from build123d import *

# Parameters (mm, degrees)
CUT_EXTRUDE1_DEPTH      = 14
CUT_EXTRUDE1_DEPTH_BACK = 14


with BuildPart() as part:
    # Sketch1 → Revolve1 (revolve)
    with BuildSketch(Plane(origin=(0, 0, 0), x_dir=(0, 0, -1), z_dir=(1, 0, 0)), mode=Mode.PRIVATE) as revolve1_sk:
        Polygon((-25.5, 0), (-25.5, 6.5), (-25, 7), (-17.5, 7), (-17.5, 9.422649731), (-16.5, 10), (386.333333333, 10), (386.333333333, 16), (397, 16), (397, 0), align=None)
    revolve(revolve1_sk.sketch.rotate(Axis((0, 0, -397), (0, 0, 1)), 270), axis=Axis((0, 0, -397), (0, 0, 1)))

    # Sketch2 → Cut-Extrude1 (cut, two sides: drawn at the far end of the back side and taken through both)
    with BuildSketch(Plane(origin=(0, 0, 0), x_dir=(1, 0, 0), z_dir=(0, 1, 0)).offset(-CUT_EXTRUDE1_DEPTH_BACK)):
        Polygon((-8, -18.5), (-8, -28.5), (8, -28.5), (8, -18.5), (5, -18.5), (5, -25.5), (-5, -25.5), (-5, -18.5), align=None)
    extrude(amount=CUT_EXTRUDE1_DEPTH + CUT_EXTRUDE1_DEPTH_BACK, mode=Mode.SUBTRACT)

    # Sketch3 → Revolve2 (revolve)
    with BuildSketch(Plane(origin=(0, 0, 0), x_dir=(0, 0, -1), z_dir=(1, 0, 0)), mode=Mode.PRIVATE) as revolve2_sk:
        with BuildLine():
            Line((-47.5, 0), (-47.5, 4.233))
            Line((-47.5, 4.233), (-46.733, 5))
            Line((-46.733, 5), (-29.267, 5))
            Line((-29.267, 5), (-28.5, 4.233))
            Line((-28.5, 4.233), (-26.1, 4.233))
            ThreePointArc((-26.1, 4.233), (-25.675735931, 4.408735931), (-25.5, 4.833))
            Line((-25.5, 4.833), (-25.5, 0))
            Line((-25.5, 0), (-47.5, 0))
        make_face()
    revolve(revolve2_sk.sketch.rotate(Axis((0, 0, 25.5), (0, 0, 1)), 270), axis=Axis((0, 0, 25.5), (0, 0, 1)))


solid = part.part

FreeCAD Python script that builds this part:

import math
import FreeCAD as App
import Part
import Sketcher
Q = App.Units.Quantity

doc = App.newDocument("Part")
body = doc.addObject("PartDesign::Body", "Body")

# Sketch on YZ plane
sketch1 = body.newObject("Sketcher::SketchObject", "Sketch")
sketch1.AttachmentSupport = (doc.getObject("YZ_Plane"), [""])
sketch1.MapMode = "FlatFace"
sketch1.addGeometry([
    Part.LineSegment(App.Vector(6.5, 25.5, 0), App.Vector(0, 25.5, 0)),  # 0
    Part.LineSegment(App.Vector(0, 25.5, 0), App.Vector(0, -397, 0)),  # 1
    Part.LineSegment(App.Vector(0, -397, 0), App.Vector(16, -397, 0)),  # 2
    Part.LineSegment(App.Vector(16, -397, 0), App.Vector(16, -386.3, 0)),  # 3
    Part.LineSegment(App.Vector(16, -386.3, 0), App.Vector(10, -386.3, 0)),  # 4
    Part.LineSegment(App.Vector(10, -386.3, 0), App.Vector(10, 16.5, 0)),  # 5
    Part.LineSegment(App.Vector(10, 16.5, 0), App.Vector(9.4, 17.5, 0)),  # 6
    Part.LineSegment(App.Vector(9.4, 17.5, 0), App.Vector(7, 17.5, 0)),  # 7
    Part.LineSegment(App.Vector(7, 17.5, 0), App.Vector(7, 25, 0)),  # 8
    Part.LineSegment(App.Vector(7, 25, 0), App.Vector(6.5, 25.5, 0)),  # 9
], False)
sketch1.addConstraint([
    Sketcher.Constraint("Coincident", 0, 2, 1, 1),
    Sketcher.Constraint("Coincident", 1, 2, 2, 1),
    Sketcher.Constraint("Coincident", 2, 2, 3, 1),
    Sketcher.Constraint("Coincident", 3, 2, 4, 1),
    Sketcher.Constraint("Coincident", 4, 2, 5, 1),
    Sketcher.Constraint("Coincident", 5, 2, 6, 1),
    Sketcher.Constraint("Coincident", 6, 2, 7, 1),
    Sketcher.Constraint("Coincident", 7, 2, 8, 1),
    Sketcher.Constraint("Coincident", 8, 2, 9, 1),
    Sketcher.Constraint("Coincident", 9, 2, 0, 1),
    Sketcher.Constraint("Horizontal", 0),
    Sketcher.Constraint("Vertical", 1),
    Sketcher.Constraint("Horizontal", 2),
    Sketcher.Constraint("Vertical", 3),
    Sketcher.Constraint("Horizontal", 4),
    Sketcher.Constraint("Vertical", 5),
    Sketcher.Constraint("Horizontal", 7),
    Sketcher.Constraint("Vertical", 8),
    Sketcher.Constraint("PointOnObject", 0, 2, -2),
    Sketcher.Constraint("DistanceX", 2, 1, 2, 2, 16.0),
    Sketcher.Constraint("DistanceX", 4, 2, 4, 1, 6.0),
    Sketcher.Constraint("Angle", 6, Q("120 deg")),
    Sketcher.Constraint("Angle", 9, Q("135 deg")),
    Sketcher.Constraint("DistanceX", 0, 2, 0, 1, 6.5),
    Sketcher.Constraint("DistanceY", 1, 2, 1, 1, 422.5),
    Sketcher.Constraint("DistanceY", 8, 1, 8, 2, 7.5),
    Sketcher.Constraint("DistanceY", 1, 2, -1, 1, 397.0),
    Sketcher.Constraint("DistanceX", -1, 1, 7, 2, 7.0),
    Sketcher.Constraint("DistanceY", 5, 2, 0, 2, 9.0),
    Sketcher.Constraint("DistanceY", 3, 1, 3, 2, 10.666667),
])
revolution = body.newObject("PartDesign::Revolution", "Revolution")
revolution.Profile = sketch1
revolution.ReferenceAxis = (sketch1, ["V_Axis"])
revolution.Angle = 360

# Sketch on XZ plane
sketch2 = body.newObject("Sketcher::SketchObject", "Sketch001")
sketch2.AttachmentSupport = (doc.getObject("XZ_Plane"), [""])
sketch2.MapMode = "FlatFace"
sketch2.addGeometry([
    Part.LineSegment(App.Vector(-8, 18.5, 0), App.Vector(-8, 28.5, 0)),  # 0
    Part.LineSegment(App.Vector(-8, 28.5, 0), App.Vector(8, 28.5, 0)),  # 1
    Part.LineSegment(App.Vector(8, 28.5, 0), App.Vector(8, 18.5, 0)),  # 2
    Part.LineSegment(App.Vector(8, 18.5, 0), App.Vector(5, 18.5, 0)),  # 3
    Part.LineSegment(App.Vector(5, 18.5, 0), App.Vector(5, 25.5, 0)),  # 4
    Part.LineSegment(App.Vector(5, 25.5, 0), App.Vector(-5, 25.5, 0)),  # 5
    Part.LineSegment(App.Vector(-5, 25.5, 0), App.Vector(-5, 18.5, 0)),  # 6
    Part.LineSegment(App.Vector(-5, 18.5, 0), App.Vector(-8, 18.5, 0)),  # 7
], False)
sketch2.addConstraint([
    Sketcher.Constraint("Coincident", 0, 2, 1, 1),
    Sketcher.Constraint("Coincident", 1, 2, 2, 1),
    Sketcher.Constraint("Coincident", 2, 2, 3, 1),
    Sketcher.Constraint("Coincident", 3, 2, 4, 1),
    Sketcher.Constraint("Coincident", 4, 2, 5, 1),
    Sketcher.Constraint("Coincident", 5, 2, 6, 1),
    Sketcher.Constraint("Coincident", 6, 2, 7, 1),
    Sketcher.Constraint("Coincident", 7, 2, 0, 1),
    Sketcher.Constraint("Vertical", 0),
    Sketcher.Constraint("Horizontal", 1),
    Sketcher.Constraint("Vertical", 2),
    Sketcher.Constraint("Horizontal", 3),
    Sketcher.Constraint("Vertical", 4),
    Sketcher.Constraint("Horizontal", 5),
    Sketcher.Constraint("Vertical", 6),
    Sketcher.Constraint("Horizontal", 7),
    Sketcher.Constraint("Symmetric", 3, 2, 6, 2, -2),
    Sketcher.Constraint("Equal", 3, 7),
    Sketcher.Constraint("Equal", 5, 0),
    Sketcher.Constraint("DistanceX", 1, 1, 1, 2, 16.0),
    Sketcher.Constraint("DistanceX", 3, 2, 3, 1, 3.0),
    Sketcher.Constraint("DistanceY", 4, 1, 4, 2, 7.0),
    Sketcher.Constraint("DistanceY", -1, 1, 0, 2, 28.5),
])
pocket1 = body.newObject("PartDesign::Pocket", "Pocket")
pocket1.Profile = sketch2
pocket1.Type = "ThroughAll"
pocket1.Midplane = True

# Sketch on YZ plane
sketch3 = body.newObject("Sketcher::SketchObject", "Sketch002")
sketch3.AttachmentSupport = (doc.getObject("YZ_Plane"), [""])
sketch3.MapMode = "FlatFace"
sketch3.addGeometry([
    Part.LineSegment(App.Vector(4.2, 47.5, 0), App.Vector(0, 47.5, 0)),  # 0
    Part.LineSegment(App.Vector(0, 47.5, 0), App.Vector(0, 25.5, 0)),  # 1
    Part.LineSegment(App.Vector(0, 25.5, 0), App.Vector(4.8, 25.5, 0)),  # 2
    Part.ArcOfCircle(Part.Circle(App.Vector(4.8, 26.1, 0), App.Vector(0, 0, 1), 0.6), math.radians(180), math.radians(270)),  # 3
    Part.LineSegment(App.Vector(4.2, 26.1, 0), App.Vector(4.2, 28.5, 0)),  # 4
    Part.LineSegment(App.Vector(4.2, 28.5, 0), App.Vector(5, 29.3, 0)),  # 5
    Part.LineSegment(App.Vector(5, 29.3, 0), App.Vector(5, 46.7, 0)),  # 6
    Part.LineSegment(App.Vector(5, 46.7, 0), App.Vector(4.2, 47.5, 0)),  # 7
], False)
sketch3.addConstraint([
    Sketcher.Constraint("Coincident", 0, 2, 1, 1),
    Sketcher.Constraint("Coincident", 1, 2, 2, 1),
    Sketcher.Constraint("Tangent", 2, 2, 3, 2),
    Sketcher.Constraint("Tangent", 3, 1, 4, 1),
    Sketcher.Constraint("Coincident", 4, 2, 5, 1),
    Sketcher.Constraint("Coincident", 5, 2, 6, 1),
    Sketcher.Constraint("Coincident", 6, 2, 7, 1),
    Sketcher.Constraint("Coincident", 7, 2, 0, 1),
    Sketcher.Constraint("Horizontal", 0),
    Sketcher.Constraint("Vertical", 1),
    Sketcher.Constraint("Horizontal", 2),
    Sketcher.Constraint("Vertical", 4),
    Sketcher.Constraint("Vertical", 6),
    Sketcher.Constraint("PointOnObject", 0, 2, -2),
    Sketcher.Constraint("Perpendicular", 5, 7),
    Sketcher.Constraint("Vertical", 4, 2, 7, 2),
    Sketcher.Constraint("Equal", 5, 7),
    Sketcher.Constraint("Radius", 3, 0.6),
    Sketcher.Constraint("DistanceY", 1, 2, 1, 1, 22.0),
    Sketcher.Constraint("DistanceY", 4, 1, 4, 2, 2.4),
    Sketcher.Constraint("DistanceX", -1, 1, 5, 2, 5.0),
    Sketcher.Constraint("DistanceY", -1, 1, 3, 3, 26.1),
    Sketcher.Constraint("DistanceX", 0, 2, 0, 1, 4.233),
])
revolution2 = body.newObject("PartDesign::Revolution", "Revolution001")
revolution2.Profile = sketch3
revolution2.ReferenceAxis = (sketch3, ["V_Axis"])
revolution2.Angle = 360

doc.recompute()
